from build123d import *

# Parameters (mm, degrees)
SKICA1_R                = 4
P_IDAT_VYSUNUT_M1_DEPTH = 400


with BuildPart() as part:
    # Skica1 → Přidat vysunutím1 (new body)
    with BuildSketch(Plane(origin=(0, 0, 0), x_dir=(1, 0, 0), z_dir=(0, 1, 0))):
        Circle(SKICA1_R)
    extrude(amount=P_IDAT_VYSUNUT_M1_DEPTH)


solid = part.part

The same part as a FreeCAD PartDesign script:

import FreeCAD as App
import Part
import Sketcher
from FreeCAD import Vector

doc = App.newDocument("Part")
body = doc.addObject("PartDesign::Body", "Body")

sketch1 = body.newObject("Sketcher::SketchObject", "Sketch")
sketch1.AttachmentSupport = (doc.getObject("XZ_Plane"), [""])
sketch1.MapMode = "FlatFace"
sketch1.addGeometry(Part.Circle(Vector(0, 0, 0), Vector(0, 0, 1), 4), False)
sketch1.addConstraint(Sketcher.Constraint("Coincident", 0, 3, -1, 1))
sketch1.addConstraint(Sketcher.Constraint("Diameter", 0, 8.0))
pad1 = body.newObject("PartDesign::Pad", "Pad")
pad1.Profile = sketch1
pad1.Length = 400
pad1.Reversed = True

doc.recompute()
